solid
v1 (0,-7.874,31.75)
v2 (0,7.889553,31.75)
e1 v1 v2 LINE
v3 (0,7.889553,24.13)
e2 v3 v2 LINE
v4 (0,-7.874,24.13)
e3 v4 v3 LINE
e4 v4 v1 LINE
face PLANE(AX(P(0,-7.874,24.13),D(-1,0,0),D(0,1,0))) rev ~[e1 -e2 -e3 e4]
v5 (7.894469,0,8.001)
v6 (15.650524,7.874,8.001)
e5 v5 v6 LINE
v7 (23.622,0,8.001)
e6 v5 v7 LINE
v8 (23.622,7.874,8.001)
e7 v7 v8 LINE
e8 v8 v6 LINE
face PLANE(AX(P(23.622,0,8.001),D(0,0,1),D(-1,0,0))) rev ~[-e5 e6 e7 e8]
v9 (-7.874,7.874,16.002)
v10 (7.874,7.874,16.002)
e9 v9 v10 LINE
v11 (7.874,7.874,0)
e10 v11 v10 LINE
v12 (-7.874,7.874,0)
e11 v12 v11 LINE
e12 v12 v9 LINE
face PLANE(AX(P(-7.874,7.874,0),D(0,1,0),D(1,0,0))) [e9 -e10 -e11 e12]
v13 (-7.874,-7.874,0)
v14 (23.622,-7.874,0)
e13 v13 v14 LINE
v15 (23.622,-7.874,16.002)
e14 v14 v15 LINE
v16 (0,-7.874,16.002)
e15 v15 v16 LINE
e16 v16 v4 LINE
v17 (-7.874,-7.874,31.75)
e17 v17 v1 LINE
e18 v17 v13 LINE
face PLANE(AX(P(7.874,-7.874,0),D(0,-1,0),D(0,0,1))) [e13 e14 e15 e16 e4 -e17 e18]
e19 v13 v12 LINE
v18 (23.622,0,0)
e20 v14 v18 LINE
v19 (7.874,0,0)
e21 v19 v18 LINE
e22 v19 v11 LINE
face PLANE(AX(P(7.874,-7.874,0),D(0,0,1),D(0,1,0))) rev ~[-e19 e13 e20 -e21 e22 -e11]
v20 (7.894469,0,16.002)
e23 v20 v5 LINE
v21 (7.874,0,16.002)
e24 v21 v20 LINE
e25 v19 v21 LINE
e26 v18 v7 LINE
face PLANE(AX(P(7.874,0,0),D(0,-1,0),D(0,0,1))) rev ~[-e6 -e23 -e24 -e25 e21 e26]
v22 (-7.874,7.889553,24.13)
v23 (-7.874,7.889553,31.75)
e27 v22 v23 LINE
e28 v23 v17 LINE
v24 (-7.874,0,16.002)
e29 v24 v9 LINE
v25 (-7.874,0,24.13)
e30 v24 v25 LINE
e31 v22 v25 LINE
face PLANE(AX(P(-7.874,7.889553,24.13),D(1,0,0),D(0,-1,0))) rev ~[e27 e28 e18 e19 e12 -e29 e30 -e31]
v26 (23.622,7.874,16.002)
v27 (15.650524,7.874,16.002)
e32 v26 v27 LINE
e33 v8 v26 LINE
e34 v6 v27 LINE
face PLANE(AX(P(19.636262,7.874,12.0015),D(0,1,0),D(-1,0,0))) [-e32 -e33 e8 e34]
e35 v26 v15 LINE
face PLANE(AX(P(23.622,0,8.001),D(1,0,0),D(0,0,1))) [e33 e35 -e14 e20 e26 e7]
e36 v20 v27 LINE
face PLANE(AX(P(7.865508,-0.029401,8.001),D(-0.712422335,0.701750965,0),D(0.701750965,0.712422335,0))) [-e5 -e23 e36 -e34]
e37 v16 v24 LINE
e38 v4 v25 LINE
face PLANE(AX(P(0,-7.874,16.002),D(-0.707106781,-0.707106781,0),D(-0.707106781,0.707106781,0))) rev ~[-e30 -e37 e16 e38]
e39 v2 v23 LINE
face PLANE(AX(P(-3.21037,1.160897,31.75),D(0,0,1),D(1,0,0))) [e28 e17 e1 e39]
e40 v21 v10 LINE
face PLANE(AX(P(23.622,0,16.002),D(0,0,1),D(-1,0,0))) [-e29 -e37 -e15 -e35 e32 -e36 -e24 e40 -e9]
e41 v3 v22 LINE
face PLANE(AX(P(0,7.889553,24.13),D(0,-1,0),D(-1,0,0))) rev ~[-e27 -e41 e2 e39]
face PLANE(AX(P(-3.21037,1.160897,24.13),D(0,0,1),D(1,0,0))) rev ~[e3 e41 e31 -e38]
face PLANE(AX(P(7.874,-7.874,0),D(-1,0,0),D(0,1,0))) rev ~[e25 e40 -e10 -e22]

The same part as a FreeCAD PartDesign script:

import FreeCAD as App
import Part
import Sketcher

V = App.Vector
Q = App.Units.Quantity


def add_polygon(sketch, points):
    """Adds a closed chain of lines whose ends are joined by coincident constraints."""
    first, n = sketch.GeometryCount, len(points)
    for a, b in zip(points, points[1:] + points[:1]):
        sketch.addGeometry(Part.LineSegment(App.Vector(*a, 0), App.Vector(*b, 0)), False)
    for i in range(n):
        sketch.addConstraint(Sketcher.Constraint("Coincident", first + i, 2, first + (i + 1) % n, 1))

doc = App.newDocument("Part")
params = doc.addObject("Spreadsheet::Sheet", "Params")
for row, (alias, value) in enumerate([
    ("sketch1_width", "0.62 in"),
    ("pad1_length", "0.63 in"),
    ("sketch2_width", "0.31 in"),
    ("pad2_length", "0.32 in"),
    ("sketch3_width", "0.31 in"),
    ("pad3_length", "0.3 in"),
    ("sketch4_width", "0.31 in"),
    ("sketch4_height", "0.63 in"),
    ("pad4_length", "0.62 in"),
    ("sketch5_height", "0.315 in"),
    ("pad5_length", "0.31 in"),
    ("sketch6_height", "0.31 in"),
    ("pad6_length", "0.315 in"),
], start=1):
    params.set(f"A{row}", alias)
    params.set(f"B{row}", "=" + value)
    params.setAlias(f"B{row}", alias)

body = doc.addObject("PartDesign::Body", "Body")

sketch1 = body.newObject("Sketcher::SketchObject", "Sketch")
sketch1.AttachmentSupport = (doc.getObject("XY_Plane"), [""])
sketch1.MapMode = "FlatFace"
add_polygon(sketch1, [(-7.874, 7.874), (-7.874, -7.874), (7.874, -7.874), (7.874, 7.874)])
sketch1.addConstraint([
    Sketcher.Constraint("Vertical", 0),
    Sketcher.Constraint("Horizontal", 1),
    Sketcher.Constraint("Vertical", 2),
    Sketcher.Constraint("Horizontal", 3),
    Sketcher.Constraint("Symmetric", 0, 2, 2, 2, -1, 1),
    Sketcher.Constraint("Equal", 3, 0),
    Sketcher.Constraint("DistanceX", 1, 1, 1, 2, Q("0.62 in")),
])
sketch1.setExpression("Constraints[10]", "Params.sketch1_width")
pad1 = body.newObject("PartDesign::Pad", "Pad")
pad1.Profile = sketch1
pad1.setExpression("Length", "Params.pad1_length")

sketch2 = body.newObject("Sketcher::SketchObject", "Sketch001")
sketch2.AttachmentSupport = (doc.getObject("XY_Plane"), [""])
sketch2.MapMode = "FlatFace"
sketch2.AttachmentOffset = App.Placement(V(0, 0, 0.63 * 25.4), App.Rotation())
add_polygon(sketch2, [(0, -7.874), (-7.874, 0), (-7.874, -7.874)])
sketch2.addConstraint([
    Sketcher.Constraint("Vertical", 1),
    Sketcher.Constraint("Horizontal", 2),
    Sketcher.Constraint("PointOnObject", 0, 2, -1),
    Sketcher.Constraint("PointOnObject", 2, 2, -2),
    Sketcher.Constraint("Equal", 2, 1),
    Sketcher.Constraint("DistanceX", 2, 1, 2, 2, Q("0.31 in")),
])
sketch2.setExpression("Constraints[8]", "Params.sketch2_width")
pad2 = body.newObject("PartDesign::Pad", "Pad001")
pad2.Profile = sketch2
pad2.setExpression("Length", "Params.pad2_length")

sketch3 = body.newObject("Sketcher::SketchObject", "Sketch002")
sketch3.AttachmentSupport = (doc.getObject("XY_Plane"), [""])
sketch3.MapMode = "FlatFace"
sketch3.AttachmentOffset = App.Placement(V(0, 0, 0.95 * 25.4), App.Rotation())
add_polygon(sketch3, [(0, -7.874), (0, 7.889553), (-7.874, 7.889553), (-7.874, -7.874)])
sketch3.addConstraint([
    Sketcher.Constraint("Vertical", 0),
    Sketcher.Constraint("Horizontal", 1),
    Sketcher.Constraint("Vertical", 2),
    Sketcher.Constraint("Horizontal", 3),
    Sketcher.Constraint("PointOnObject", 0, 2, -2),
    Sketcher.Constraint("DistanceX", 1, 2, 1, 1, Q("0.31 in")),
    Sketcher.Constraint("DistanceY", 2, 2, -1, 1, Q("0.31 in")),
    Sketcher.Constraint("DistanceY", 0, 1, 0, 2, Q("15.763553 mm")),
])
sketch3.setExpression("Constraints[9]", "Params.sketch3_width")
pad3 = body.newObject("PartDesign::Pad", "Pad002")
pad3.Profile = sketch3
pad3.setExpression("Length", "Params.pad3_length")

sketch4 = body.newObject("Sketcher::SketchObject", "Sketch003")
sketch4.AttachmentSupport = (doc.getObject("YZ_Plane"), [""])
sketch4.MapMode = "FlatFace"
sketch4.AttachmentOffset = App.Placement(V(0, 0, 0.31 * 25.4), App.Rotation())
add_polygon(sketch4, [(-7.874, 16.002), (-7.874, 0), (0, 0), (0, 16.002)])
sketch4.addConstraint([
    Sketcher.Constraint("Vertical", 0),
    Sketcher.Constraint("Horizontal", 1),
    Sketcher.Constraint("Vertical", 2),
    Sketcher.Constraint("Horizontal", 3),
    Sketcher.Constraint("Coincident", 1, 2, -1, 1),
    Sketcher.Constraint("DistanceX", 1, 1, 1, 2, Q("0.31 in")),
    Sketcher.Constraint("DistanceY", 0, 2, 0, 1, Q("0.63 in")),
])
sketch4.setExpression("Constraints[9]", "Params.sketch4_width")
sketch4.setExpression("Constraints[10]", "Params.sketch4_height")
pad4 = body.newObject("PartDesign::Pad", "Pad003")
pad4.Profile = sketch4
pad4.setExpression("Length", "Params.pad4_length")

sketch5 = body.newObject("Sketcher::SketchObject", "Sketch004")
sketch5.AttachmentSupport = (doc.getObject("XZ_Plane"), [""])
sketch5.MapMode = "FlatFace"
add_polygon(sketch5, [(23.622, 16.002), (23.622, 8.001), (15.650524, 8.001), (15.650524, 16.002)])
sketch5.addConstraint([
    Sketcher.Constraint("Vertical", 0),
    Sketcher.Constraint("Horizontal", 1),
    Sketcher.Constraint("Vertical", 2),
    Sketcher.Constraint("Horizontal", 3),
    Sketcher.Constraint("DistanceY", 0, 2, 0, 1, Q("0.315 in")),
    Sketcher.Constraint("DistanceX", -1, 1, 0, 2, Q("0.93 in")),
    Sketcher.Constraint("DistanceY", -1, 1, 2, 2, Q("0.63 in")),
    Sketcher.Constraint("DistanceX", 1, 2, 1, 1, Q("7.971476 mm")),
])
sketch5.setExpression("Constraints[8]", "Params.sketch5_height")
pad5 = body.newObject("PartDesign::Pad", "Pad004")
pad5.Profile = sketch5
pad5.setExpression("Length", "Params.pad5_length")
pad5.Reversed = True

sketch6 = body.newObject("Sketcher::SketchObject", "Sketch005")
sketch6.AttachmentSupport = (doc.getObject("XY_Plane"), [""])
sketch6.MapMode = "FlatFace"
sketch6.AttachmentOffset = App.Placement(V(0, 0, 0.315 * 25.4), App.Rotation())
add_polygon(sketch6, [(7.865508, -0.029401), (15.650524, 7.874), (15.650524, 0)])
sketch6.addConstraint([
    Sketcher.Constraint("Vertical", 1),
    Sketcher.Constraint("PointOnObject", 1, 2, -1),
    Sketcher.Constraint("DistanceY", 1, 2, 1, 1, Q("0.31 in")),
    Sketcher.Constraint("Distance", 0, Q("11.093702 mm")),
    Sketcher.Constraint("DistanceY", 2, 2, -1, 1, Q("0.029401 mm")),
    Sketcher.Constraint("DistanceX", -1, 1, 2, 2, Q("7.865508 mm")),
])
sketch6.setExpression("Constraints[5]", "Params.sketch6_height")
pad6 = body.newObject("PartDesign::Pad", "Pad005")
pad6.Profile = sketch6
pad6.setExpression("Length", "Params.pad6_length")

doc.recompute()
